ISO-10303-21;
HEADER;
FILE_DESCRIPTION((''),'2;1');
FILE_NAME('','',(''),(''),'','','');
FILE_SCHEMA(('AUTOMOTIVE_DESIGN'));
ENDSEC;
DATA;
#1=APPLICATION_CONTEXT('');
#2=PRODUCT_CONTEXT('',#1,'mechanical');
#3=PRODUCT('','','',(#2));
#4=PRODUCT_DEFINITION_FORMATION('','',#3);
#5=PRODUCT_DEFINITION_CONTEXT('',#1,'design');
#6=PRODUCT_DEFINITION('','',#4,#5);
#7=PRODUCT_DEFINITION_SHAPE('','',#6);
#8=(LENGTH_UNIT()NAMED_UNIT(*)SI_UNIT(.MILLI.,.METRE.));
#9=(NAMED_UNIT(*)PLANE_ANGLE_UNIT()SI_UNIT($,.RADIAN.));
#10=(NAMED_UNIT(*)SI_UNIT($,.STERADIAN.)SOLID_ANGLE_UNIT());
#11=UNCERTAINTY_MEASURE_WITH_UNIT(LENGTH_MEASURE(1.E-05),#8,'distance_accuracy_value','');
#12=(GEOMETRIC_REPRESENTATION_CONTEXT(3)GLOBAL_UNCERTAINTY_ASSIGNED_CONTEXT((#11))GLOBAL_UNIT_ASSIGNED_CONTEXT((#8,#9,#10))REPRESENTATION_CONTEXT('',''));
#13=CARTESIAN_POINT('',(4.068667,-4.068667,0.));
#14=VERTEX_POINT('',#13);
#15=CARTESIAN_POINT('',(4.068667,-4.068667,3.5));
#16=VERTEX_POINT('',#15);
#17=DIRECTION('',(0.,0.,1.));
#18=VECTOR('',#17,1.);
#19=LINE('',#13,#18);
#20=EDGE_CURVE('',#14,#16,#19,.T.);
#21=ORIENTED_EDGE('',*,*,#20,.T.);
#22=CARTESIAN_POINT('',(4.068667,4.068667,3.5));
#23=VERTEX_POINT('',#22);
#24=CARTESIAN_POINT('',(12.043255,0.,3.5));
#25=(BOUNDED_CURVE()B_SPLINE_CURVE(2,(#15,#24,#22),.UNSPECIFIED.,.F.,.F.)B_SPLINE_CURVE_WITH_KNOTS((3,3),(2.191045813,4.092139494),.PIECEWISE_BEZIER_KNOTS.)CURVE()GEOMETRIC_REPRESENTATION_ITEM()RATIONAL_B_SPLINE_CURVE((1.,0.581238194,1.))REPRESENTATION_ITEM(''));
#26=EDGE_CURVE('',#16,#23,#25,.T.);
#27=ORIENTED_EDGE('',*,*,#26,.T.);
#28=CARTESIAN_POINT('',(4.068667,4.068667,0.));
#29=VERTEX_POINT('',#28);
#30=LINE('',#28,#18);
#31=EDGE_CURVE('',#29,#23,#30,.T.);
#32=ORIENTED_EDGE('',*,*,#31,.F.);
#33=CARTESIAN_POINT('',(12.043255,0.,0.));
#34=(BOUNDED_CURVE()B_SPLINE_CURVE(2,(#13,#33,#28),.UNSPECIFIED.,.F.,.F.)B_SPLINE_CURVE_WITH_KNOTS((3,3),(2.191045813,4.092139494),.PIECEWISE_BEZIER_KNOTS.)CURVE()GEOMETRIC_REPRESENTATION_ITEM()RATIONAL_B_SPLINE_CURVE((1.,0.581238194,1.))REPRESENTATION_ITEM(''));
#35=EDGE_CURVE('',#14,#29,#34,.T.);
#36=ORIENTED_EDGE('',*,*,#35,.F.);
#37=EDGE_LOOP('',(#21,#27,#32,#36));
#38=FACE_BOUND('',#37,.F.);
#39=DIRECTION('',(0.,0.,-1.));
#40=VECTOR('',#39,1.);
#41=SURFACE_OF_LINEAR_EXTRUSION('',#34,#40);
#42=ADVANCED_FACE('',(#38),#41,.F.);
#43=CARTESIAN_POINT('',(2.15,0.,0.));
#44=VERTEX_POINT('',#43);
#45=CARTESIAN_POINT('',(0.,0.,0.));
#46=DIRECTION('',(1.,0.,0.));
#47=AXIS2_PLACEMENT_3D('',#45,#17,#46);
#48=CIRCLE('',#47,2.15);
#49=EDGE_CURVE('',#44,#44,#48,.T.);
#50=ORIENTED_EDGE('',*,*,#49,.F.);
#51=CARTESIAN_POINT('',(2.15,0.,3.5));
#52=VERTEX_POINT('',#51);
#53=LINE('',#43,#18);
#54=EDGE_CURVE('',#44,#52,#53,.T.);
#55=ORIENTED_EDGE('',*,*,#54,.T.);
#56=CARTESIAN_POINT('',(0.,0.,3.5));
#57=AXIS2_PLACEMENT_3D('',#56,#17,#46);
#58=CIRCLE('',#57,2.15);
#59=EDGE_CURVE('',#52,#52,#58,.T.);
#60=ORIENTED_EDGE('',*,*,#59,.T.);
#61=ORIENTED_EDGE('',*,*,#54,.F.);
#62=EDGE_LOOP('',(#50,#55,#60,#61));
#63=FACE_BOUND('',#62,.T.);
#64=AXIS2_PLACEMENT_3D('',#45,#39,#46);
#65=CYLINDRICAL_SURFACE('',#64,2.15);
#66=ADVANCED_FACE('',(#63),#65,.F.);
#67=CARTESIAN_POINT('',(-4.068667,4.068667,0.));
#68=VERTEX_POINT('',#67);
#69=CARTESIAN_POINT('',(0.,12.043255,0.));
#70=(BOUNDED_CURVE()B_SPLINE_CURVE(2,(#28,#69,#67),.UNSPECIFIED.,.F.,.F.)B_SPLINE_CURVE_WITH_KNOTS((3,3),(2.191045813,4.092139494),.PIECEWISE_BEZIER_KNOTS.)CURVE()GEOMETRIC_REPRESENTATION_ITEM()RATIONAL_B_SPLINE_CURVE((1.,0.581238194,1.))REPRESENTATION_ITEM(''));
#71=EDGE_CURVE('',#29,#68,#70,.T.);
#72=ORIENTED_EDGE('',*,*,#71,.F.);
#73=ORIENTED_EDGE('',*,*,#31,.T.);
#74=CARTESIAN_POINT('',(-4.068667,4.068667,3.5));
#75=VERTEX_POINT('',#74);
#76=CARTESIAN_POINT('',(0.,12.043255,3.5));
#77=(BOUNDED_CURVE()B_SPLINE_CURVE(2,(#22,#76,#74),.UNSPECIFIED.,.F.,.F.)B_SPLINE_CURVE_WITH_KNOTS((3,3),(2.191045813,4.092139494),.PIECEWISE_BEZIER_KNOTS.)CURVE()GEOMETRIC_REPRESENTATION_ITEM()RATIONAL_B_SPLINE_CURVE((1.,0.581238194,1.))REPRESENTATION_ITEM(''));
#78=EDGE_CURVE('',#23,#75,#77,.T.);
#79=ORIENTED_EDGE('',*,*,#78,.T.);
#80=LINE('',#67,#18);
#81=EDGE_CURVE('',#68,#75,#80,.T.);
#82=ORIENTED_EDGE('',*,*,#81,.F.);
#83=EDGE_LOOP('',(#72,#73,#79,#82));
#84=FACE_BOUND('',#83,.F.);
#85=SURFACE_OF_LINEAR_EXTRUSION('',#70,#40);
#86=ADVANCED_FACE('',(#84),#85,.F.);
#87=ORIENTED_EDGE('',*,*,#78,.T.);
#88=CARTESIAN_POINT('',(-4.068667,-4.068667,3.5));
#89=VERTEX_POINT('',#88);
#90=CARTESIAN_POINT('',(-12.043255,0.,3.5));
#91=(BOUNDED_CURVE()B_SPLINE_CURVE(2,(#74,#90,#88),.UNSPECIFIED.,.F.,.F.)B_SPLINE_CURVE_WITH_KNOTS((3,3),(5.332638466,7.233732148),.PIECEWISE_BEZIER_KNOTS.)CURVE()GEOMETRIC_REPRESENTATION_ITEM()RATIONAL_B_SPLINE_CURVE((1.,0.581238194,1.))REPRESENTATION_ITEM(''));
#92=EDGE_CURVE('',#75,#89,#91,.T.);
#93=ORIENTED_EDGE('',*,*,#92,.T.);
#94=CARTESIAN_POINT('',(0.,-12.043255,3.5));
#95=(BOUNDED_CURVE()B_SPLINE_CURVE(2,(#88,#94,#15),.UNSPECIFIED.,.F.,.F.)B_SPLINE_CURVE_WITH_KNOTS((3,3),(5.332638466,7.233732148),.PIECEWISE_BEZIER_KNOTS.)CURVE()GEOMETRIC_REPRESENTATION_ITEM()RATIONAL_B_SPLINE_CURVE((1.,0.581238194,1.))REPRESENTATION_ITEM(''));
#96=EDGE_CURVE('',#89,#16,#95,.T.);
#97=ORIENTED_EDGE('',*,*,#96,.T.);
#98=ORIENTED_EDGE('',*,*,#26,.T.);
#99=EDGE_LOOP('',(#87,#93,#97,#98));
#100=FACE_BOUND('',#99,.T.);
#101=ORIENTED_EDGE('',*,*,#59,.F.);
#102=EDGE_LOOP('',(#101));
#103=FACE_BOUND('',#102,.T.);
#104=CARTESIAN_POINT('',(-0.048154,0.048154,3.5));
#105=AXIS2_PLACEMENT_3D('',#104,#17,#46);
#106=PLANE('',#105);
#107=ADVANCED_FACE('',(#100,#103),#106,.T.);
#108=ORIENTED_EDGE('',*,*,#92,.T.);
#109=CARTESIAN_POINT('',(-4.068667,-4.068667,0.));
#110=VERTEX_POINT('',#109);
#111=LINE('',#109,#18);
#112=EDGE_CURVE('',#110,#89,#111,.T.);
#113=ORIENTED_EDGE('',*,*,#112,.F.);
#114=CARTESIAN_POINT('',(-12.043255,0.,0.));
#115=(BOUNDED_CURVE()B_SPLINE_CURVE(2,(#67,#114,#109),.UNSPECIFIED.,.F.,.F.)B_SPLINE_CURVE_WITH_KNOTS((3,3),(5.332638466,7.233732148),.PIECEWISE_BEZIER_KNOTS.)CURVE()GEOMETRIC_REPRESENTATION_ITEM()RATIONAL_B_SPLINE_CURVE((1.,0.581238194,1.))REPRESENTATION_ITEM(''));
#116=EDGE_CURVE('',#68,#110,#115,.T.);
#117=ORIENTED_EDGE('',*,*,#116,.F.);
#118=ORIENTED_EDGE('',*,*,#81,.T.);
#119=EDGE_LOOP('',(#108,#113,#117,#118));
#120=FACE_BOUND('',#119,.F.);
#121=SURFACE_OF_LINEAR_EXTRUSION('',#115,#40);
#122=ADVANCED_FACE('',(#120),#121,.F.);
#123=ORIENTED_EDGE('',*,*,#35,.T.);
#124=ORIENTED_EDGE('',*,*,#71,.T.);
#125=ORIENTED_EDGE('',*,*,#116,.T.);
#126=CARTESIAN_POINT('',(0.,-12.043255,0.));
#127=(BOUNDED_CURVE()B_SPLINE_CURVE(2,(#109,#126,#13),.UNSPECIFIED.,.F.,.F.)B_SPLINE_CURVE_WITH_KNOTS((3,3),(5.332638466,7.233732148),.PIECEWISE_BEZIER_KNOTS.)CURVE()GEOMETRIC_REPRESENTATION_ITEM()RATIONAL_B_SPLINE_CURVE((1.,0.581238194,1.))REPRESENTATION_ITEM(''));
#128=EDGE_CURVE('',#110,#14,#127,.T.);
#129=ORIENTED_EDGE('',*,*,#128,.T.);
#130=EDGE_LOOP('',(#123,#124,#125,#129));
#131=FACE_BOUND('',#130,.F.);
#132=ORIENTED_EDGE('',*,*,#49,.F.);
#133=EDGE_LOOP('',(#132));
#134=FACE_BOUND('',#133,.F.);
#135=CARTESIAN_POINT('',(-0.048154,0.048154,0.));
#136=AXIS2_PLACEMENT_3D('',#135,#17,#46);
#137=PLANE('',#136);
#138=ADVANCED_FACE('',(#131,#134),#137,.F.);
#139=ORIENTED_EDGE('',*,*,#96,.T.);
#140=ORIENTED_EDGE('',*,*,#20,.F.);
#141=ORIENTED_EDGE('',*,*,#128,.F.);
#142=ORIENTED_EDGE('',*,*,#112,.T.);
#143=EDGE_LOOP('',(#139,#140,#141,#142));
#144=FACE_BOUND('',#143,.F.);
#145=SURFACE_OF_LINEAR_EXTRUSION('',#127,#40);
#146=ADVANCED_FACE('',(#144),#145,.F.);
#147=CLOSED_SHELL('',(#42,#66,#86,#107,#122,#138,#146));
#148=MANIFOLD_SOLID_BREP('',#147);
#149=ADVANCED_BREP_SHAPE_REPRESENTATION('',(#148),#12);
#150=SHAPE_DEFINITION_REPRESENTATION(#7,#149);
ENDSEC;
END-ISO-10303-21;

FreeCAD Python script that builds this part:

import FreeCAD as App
import Part
import Sketcher
Q = App.Units.Quantity

doc = App.newDocument("Part")
body = doc.addObject("PartDesign::Body", "Body")

sketch1 = body.newObject("Sketcher::SketchObject", "Sketch")
sketch1.AttachmentSupport = (doc.getObject("XY_Plane"), [""])
sketch1.MapMode = "FlatFace"
sketch1.addGeometry([
    Part.BSplineCurve([App.Vector(-4.068667, 4.068667, 0), App.Vector(-12.043255, 0, 0), App.Vector(-4.068667, -4.068667, 0)], [3, 3], [5.332638466, 7.233732148], False, 2, [1, 0.581238194, 1], False),
    Part.BSplineCurve([App.Vector(-4.068667, -4.068667, 0), App.Vector(0, -12.043255, 0), App.Vector(4.068667, -4.068667, 0)], [3, 3], [5.332638466, 7.233732148], False, 2, [1, 0.581238194, 1], False),
    Part.BSplineCurve([App.Vector(4.068667, -4.068667, 0), App.Vector(12.043255, 0, 0), App.Vector(4.068667, 4.068667, 0)], [3, 3], [2.191045813, 4.092139494], False, 2, [1, 0.581238194, 1], False),
    Part.BSplineCurve([App.Vector(4.068667, 4.068667, 0), App.Vector(0, 12.043255, 0), App.Vector(-4.068667, 4.068667, 0)], [3, 3], [2.191045813, 4.092139494], False, 2, [1, 0.581238194, 1], False),
    Part.Circle(App.Vector(0, 0, 0), App.Vector(0, 0, 1), 2.15),
], False)
sketch1.addConstraint([
    Sketcher.Constraint("Block", 0),
    Sketcher.Constraint("Block", 1),
    Sketcher.Constraint("Block", 2),
    Sketcher.Constraint("Block", 3),
    Sketcher.Constraint("Coincident", 4, 3, -1, 1),
    Sketcher.Constraint("Diameter", 4, Q("4.3 mm")),
])
pad1 = body.newObject("PartDesign::Pad", "Pad")
pad1.Profile = sketch1
pad1.Length = 3.5

doc.recompute()
